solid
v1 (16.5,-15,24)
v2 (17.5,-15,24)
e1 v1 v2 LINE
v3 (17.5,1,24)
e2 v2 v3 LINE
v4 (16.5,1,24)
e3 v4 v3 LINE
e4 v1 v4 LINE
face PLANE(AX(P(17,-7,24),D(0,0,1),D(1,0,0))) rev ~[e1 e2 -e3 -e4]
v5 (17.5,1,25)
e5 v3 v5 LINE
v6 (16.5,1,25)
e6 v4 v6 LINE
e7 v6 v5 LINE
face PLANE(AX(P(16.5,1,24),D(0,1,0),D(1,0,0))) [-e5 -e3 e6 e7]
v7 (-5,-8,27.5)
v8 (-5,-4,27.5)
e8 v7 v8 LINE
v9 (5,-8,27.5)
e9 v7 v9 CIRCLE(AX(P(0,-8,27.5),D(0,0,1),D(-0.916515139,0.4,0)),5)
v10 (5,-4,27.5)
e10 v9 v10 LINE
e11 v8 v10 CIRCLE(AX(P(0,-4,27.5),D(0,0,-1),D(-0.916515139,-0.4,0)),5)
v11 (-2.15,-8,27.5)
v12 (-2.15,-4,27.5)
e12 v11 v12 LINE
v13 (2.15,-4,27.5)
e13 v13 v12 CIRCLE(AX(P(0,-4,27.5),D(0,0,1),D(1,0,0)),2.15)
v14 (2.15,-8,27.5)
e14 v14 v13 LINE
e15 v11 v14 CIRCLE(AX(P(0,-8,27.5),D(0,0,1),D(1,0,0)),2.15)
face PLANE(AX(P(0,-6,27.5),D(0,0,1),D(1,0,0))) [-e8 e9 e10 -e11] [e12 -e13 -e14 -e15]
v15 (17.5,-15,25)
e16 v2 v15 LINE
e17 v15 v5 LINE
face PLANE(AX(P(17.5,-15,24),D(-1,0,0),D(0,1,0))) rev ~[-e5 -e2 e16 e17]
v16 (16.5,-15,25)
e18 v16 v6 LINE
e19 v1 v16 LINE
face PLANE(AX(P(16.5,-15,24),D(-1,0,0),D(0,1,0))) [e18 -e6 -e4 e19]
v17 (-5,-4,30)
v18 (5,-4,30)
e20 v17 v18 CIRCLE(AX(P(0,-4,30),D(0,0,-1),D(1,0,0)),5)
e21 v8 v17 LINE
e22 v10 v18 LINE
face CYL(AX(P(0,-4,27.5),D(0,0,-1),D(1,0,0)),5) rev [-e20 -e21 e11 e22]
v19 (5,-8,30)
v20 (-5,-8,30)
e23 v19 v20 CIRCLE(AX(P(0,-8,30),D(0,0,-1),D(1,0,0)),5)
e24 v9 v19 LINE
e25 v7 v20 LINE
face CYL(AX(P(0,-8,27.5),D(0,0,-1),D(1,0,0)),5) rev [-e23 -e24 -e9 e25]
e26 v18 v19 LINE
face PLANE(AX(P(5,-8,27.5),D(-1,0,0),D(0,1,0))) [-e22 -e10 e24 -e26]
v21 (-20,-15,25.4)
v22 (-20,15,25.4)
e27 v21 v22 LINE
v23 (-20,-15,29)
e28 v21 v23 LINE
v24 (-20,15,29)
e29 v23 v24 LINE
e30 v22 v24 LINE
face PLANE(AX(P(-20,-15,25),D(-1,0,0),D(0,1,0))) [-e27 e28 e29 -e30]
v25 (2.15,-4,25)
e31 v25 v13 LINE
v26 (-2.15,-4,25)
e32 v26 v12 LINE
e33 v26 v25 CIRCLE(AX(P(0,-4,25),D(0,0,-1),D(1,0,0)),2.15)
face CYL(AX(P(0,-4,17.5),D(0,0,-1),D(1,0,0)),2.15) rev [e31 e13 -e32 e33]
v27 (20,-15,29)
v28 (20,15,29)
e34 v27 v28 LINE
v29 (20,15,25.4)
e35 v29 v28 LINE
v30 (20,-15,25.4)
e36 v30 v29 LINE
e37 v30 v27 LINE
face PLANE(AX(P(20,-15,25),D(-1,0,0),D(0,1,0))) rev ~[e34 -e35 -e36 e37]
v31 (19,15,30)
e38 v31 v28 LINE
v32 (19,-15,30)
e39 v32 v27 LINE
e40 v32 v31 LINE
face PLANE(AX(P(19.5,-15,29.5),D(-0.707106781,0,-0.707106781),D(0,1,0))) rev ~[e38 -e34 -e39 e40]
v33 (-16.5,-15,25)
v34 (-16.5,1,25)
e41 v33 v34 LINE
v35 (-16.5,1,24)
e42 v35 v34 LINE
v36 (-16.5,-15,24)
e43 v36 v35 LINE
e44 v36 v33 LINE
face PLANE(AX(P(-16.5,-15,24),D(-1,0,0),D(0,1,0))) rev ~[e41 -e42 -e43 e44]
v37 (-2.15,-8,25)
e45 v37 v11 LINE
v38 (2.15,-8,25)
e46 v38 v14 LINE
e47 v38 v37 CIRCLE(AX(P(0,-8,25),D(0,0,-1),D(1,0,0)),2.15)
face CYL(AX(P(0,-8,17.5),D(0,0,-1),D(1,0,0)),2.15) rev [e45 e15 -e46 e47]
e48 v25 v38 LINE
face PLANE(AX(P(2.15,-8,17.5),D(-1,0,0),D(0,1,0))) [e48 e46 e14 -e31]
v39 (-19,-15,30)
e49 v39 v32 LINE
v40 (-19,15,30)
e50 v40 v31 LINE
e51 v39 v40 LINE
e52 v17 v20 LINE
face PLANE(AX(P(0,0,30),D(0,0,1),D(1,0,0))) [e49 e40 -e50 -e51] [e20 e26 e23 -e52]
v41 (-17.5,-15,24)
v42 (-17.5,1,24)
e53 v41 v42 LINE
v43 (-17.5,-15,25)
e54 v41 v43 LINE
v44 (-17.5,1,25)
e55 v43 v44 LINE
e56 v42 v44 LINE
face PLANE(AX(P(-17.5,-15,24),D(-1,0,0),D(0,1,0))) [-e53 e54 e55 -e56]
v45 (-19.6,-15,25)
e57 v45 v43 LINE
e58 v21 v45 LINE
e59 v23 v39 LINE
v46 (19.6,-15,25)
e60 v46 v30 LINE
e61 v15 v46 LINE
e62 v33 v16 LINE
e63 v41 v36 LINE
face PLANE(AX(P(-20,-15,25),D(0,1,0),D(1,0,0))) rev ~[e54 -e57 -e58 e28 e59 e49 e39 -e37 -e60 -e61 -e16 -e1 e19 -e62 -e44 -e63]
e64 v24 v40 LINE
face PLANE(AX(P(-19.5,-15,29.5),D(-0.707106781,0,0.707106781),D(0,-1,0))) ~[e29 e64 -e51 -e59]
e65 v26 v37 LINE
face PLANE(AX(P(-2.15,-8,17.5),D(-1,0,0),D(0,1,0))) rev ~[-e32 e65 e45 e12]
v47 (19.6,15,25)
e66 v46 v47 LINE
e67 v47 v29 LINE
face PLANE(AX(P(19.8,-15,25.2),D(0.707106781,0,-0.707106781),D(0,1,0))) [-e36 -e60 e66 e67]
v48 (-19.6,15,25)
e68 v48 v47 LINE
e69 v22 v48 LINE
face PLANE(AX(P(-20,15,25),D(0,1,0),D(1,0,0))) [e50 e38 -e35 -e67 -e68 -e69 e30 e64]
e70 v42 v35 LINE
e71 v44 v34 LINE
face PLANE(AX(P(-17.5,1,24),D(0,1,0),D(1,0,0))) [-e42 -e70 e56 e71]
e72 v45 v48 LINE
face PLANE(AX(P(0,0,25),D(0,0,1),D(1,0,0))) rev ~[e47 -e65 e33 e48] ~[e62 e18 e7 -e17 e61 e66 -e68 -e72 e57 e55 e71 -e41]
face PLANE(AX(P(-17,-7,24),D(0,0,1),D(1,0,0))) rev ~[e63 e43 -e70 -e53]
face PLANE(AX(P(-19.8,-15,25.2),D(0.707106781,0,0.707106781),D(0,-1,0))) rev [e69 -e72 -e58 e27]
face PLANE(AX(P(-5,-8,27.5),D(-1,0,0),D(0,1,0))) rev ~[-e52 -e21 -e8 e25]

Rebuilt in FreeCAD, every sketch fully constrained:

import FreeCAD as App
import Part
import Sketcher

V = App.Vector
Q = App.Units.Quantity


def edges_at(feature, points):
    """Names of the edges that pass closest to the given points."""
    edges = feature.Shape.Edges
    near = lambda p: min(range(len(edges)), key=lambda i: edges[i].distToShape(Part.Vertex(*p))[0])
    return sorted({f"Edge{near(p) + 1}" for p in points})

doc = App.newDocument("Part")
params = doc.addObject("Spreadsheet::Sheet", "Params")
for row, (alias, value) in enumerate([
    ("sketch1_diameter", "4.3 mm"),
    ("pad1_length", "10 mm"),
    ("sketch2_diameter", "4.3 mm"),
    ("pad2_length", "10 mm"),
    ("sketch3_height", "4 mm"),
    ("sketch3_width", "4.3 mm"),
    ("pad3_length", "10 mm"),
    ("sketch4_diameter", "10 mm"),
    ("pad4_length", "10 mm"),
    ("sketch5_width", "10 mm"),
    ("sketch5_height", "4 mm"),
    ("pad5_length", "10 mm"),
    ("sketch6_diameter", "10 mm"),
    ("pad6_length", "10 mm"),
    ("sketch7_width", "1 mm"),
    ("sketch7_height", "16 mm"),
    ("pad7_length", "2 mm"),
    ("sketch8_width", "40 mm"),
    ("sketch8_height", "30 mm"),
    ("pad8_length", "5 mm"),
    ("sketch9_width", "1 mm"),
    ("sketch9_height", "16 mm"),
    ("pad9_length", "2 mm"),
    ("chamfer_size", "1 mm"),
    ("chamfer2_size", "0.4 mm"),
], start=1):
    params.set(f"A{row}", alias)
    params.set(f"B{row}", "=" + value)
    params.setAlias(f"B{row}", alias)

body = doc.addObject("PartDesign::Body", "Body")

# Sketch on XY plane
sketch1 = body.newObject("Sketcher::SketchObject", "Sketch")
sketch1.AttachmentSupport = (doc.getObject("XY_Plane"), [""])
sketch1.MapMode = "FlatFace"
sketch1.addGeometry(Part.Circle(V(0, -8, 0), V(0, 0, 1), 2.1), False)
sketch1.addConstraint(Sketcher.Constraint("PointOnObject", 0, 3, -2))
sketch1.addConstraint(Sketcher.Constraint("Diameter", 0, Q("4.3 mm")))
sketch1.addConstraint(Sketcher.Constraint("DistanceY", 0, 3, -1, 1, Q("8 mm")))
sketch1.setExpression("Constraints[1]", "Params.sketch1_diameter")
pad1 = body.newObject("PartDesign::Pad", "Pad")
pad1.Profile = sketch1
pad1.setExpression("Length", "Params.pad1_length")
body2 = doc.addObject("PartDesign::Body", "Body001")

# Sketch on XY plane
sketch2 = body2.newObject("Sketcher::SketchObject", "Sketch001")
sketch2.AttachmentSupport = (doc.getObject("XY_Plane001"), [""])
sketch2.MapMode = "FlatFace"
sketch2.addGeometry(Part.Circle(V(0, -4, 0), V(0, 0, 1), 2.1), False)
sketch2.addConstraint(Sketcher.Constraint("PointOnObject", 0, 3, -2))
sketch2.addConstraint(Sketcher.Constraint("Diameter", 0, Q("4.3 mm")))
sketch2.addConstraint(Sketcher.Constraint("DistanceY", 0, 3, -1, 1, Q("4 mm")))
sketch2.setExpression("Constraints[1]", "Params.sketch2_diameter")
pad2 = body2.newObject("PartDesign::Pad", "Pad001")
pad2.Profile = sketch2
pad2.setExpression("Length", "Params.pad2_length")
body3 = doc.addObject("PartDesign::Body", "Body002")

# Sketch on XY plane
sketch3 = body3.newObject("Sketcher::SketchObject", "Sketch002")
sketch3.AttachmentSupport = (doc.getObject("XY_Plane002"), [""])
sketch3.MapMode = "FlatFace"
sketch3.addGeometry(Part.LineSegment(V(-2.1, -4, 0), V(-2.1, -8, 0)), False)
sketch3.addGeometry(Part.LineSegment(V(-2.1, -8, 0), V(2.1, -8, 0)), False)
sketch3.addGeometry(Part.LineSegment(V(2.1, -8, 0), V(2.1, -4, 0)), False)
sketch3.addGeometry(Part.LineSegment(V(2.1, -4, 0), V(-2.1, -4, 0)), False)
sketch3.addConstraint(Sketcher.Constraint("Coincident", 0, 2, 1, 1))
sketch3.addConstraint(Sketcher.Constraint("Coincident", 1, 2, 2, 1))
sketch3.addConstraint(Sketcher.Constraint("Coincident", 2, 2, 3, 1))
sketch3.addConstraint(Sketcher.Constraint("Coincident", 3, 2, 0, 1))
sketch3.addConstraint(Sketcher.Constraint("Vertical", 0))
sketch3.addConstraint(Sketcher.Constraint("Horizontal", 1))
sketch3.addConstraint(Sketcher.Constraint("Vertical", 2))
sketch3.addConstraint(Sketcher.Constraint("Horizontal", 3))
sketch3.addConstraint(Sketcher.Constraint("DistanceY", 0, 2, 0, 1, Q("4 mm")))
sketch3.addConstraint(Sketcher.Constraint("DistanceX", 1, 1, 1, 2, Q("4.3 mm")))
sketch3.addConstraint(Sketcher.Constraint("DistanceY", 0, 2, -1, 1, Q("8 mm")))
sketch3.addConstraint(Sketcher.Constraint("DistanceX", 0, 2, -1, 1, Q("2.15 mm")))
sketch3.setExpression("Constraints[8]", "Params.sketch3_height")
sketch3.setExpression("Constraints[9]", "Params.sketch3_width")
pad3 = body3.newObject("PartDesign::Pad", "Pad002")
pad3.Profile = sketch3
pad3.setExpression("Length", "Params.pad3_length")
doc.recompute()

boolean = body3.newObject("PartDesign::Boolean", "Boolean")
boolean.Type = "Fuse"
boolean.addObjects([body])
doc.recompute()

boolean2 = body3.newObject("PartDesign::Boolean", "Boolean001")
boolean2.Type = "Fuse"
boolean2.addObjects([body2])
body4 = doc.addObject("PartDesign::Body", "Body003")

# Sketch on XY plane
sketch4 = body4.newObject("Sketcher::SketchObject", "Sketch003")
sketch4.AttachmentSupport = (doc.getObject("XY_Plane003"), [""])
sketch4.MapMode = "FlatFace"
sketch4.addGeometry(Part.Circle(V(0, -8, 0), V(0, 0, 1), 5), False)
sketch4.addConstraint(Sketcher.Constraint("PointOnObject", 0, 3, -2))
sketch4.addConstraint(Sketcher.Constraint("Diameter", 0, Q("10 mm")))
sketch4.addConstraint(Sketcher.Constraint("DistanceY", 0, 3, -1, 1, Q("8 mm")))
sketch4.setExpression("Constraints[1]", "Params.sketch4_diameter")
pad4 = body4.newObject("PartDesign::Pad", "Pad003")
pad4.Profile = sketch4
pad4.setExpression("Length", "Params.pad4_length")
body5 = doc.addObject("PartDesign::Body", "Body004")

# Sketch on XY plane
sketch5 = body5.newObject("Sketcher::SketchObject", "Sketch004")
sketch5.AttachmentSupport = (doc.getObject("XY_Plane004"), [""])
sketch5.MapMode = "FlatFace"
sketch5.addGeometry(Part.LineSegment(V(-5, -4, 0), V(-5, -8, 0)), False)
sketch5.addGeometry(Part.LineSegment(V(-5, -8, 0), V(5, -8, 0)), False)
sketch5.addGeometry(Part.LineSegment(V(5, -8, 0), V(5, -4, 0)), False)
sketch5.addGeometry(Part.LineSegment(V(5, -4, 0), V(-5, -4, 0)), False)
sketch5.addConstraint(Sketcher.Constraint("Coincident", 0, 2, 1, 1))
sketch5.addConstraint(Sketcher.Constraint("Coincident", 1, 2, 2, 1))
sketch5.addConstraint(Sketcher.Constraint("Coincident", 2, 2, 3, 1))
sketch5.addConstraint(Sketcher.Constraint("Coincident", 3, 2, 0, 1))
sketch5.addConstraint(Sketcher.Constraint("Vertical", 0))
sketch5.addConstraint(Sketcher.Constraint("Horizontal", 1))
sketch5.addConstraint(Sketcher.Constraint("Vertical", 2))
sketch5.addConstraint(Sketcher.Constraint("Horizontal", 3))
sketch5.addConstraint(Sketcher.Constraint("DistanceX", 1, 1, 1, 2, Q("10 mm")))
sketch5.addConstraint(Sketcher.Constraint("DistanceY", 0, 2, 0, 1, Q("4 mm")))
sketch5.addConstraint(Sketcher.Constraint("DistanceX", 0, 2, -1, 1, Q("5 mm")))
sketch5.addConstraint(Sketcher.Constraint("DistanceY", 0, 2, -1, 1, Q("8 mm")))
sketch5.setExpression("Constraints[8]", "Params.sketch5_width")
sketch5.setExpression("Constraints[9]", "Params.sketch5_height")
pad5 = body5.newObject("PartDesign::Pad", "Pad004")
pad5.Profile = sketch5
pad5.setExpression("Length", "Params.pad5_length")
body6 = doc.addObject("PartDesign::Body", "Body005")

# Sketch on XY plane
sketch6 = body6.newObject("Sketcher::SketchObject", "Sketch005")
sketch6.AttachmentSupport = (doc.getObject("XY_Plane005"), [""])
sketch6.MapMode = "FlatFace"
sketch6.addGeometry(Part.Circle(V(0, -4, 0), V(0, 0, 1), 5), False)
sketch6.addConstraint(Sketcher.Constraint("PointOnObject", 0, 3, -2))
sketch6.addConstraint(Sketcher.Constraint("Diameter", 0, Q("10 mm")))
sketch6.addConstraint(Sketcher.Constraint("DistanceY", 0, 3, -1, 1, Q("4 mm")))
sketch6.setExpression("Constraints[1]", "Params.sketch6_diameter")
pad6 = body6.newObject("PartDesign::Pad", "Pad005")
pad6.Profile = sketch6
pad6.setExpression("Length", "Params.pad6_length")
doc.recompute()

boolean3 = body6.newObject("PartDesign::Boolean", "Boolean002")
boolean3.Type = "Fuse"
boolean3.addObjects([body4])
doc.recompute()

boolean4 = body6.newObject("PartDesign::Boolean", "Boolean003")
boolean4.Type = "Fuse"
boolean4.addObjects([body5])
body7 = doc.addObject("PartDesign::Body", "Body006")
doc.recompute()

body6.Placement = App.Placement(V(0, 0, 10), App.Rotation(V(0, 0, 1), 0))
boolean5 = body7.newObject("PartDesign::Boolean", "Boolean004")
boolean5.Type = "Fuse"
boolean5.addObjects([body6])
doc.recompute()

boolean6 = body7.newObject("PartDesign::Boolean", "Boolean005")
boolean6.Type = "Fuse"
boolean6.addObjects([body3])
body8 = doc.addObject("PartDesign::Body", "Body007")
doc.recompute()

body7.Placement = App.Placement(V(0, 0, 17.5), App.Rotation(V(0, 0, 1), 0))
boolean7 = body8.newObject("PartDesign::Boolean", "Boolean006")
boolean7.Type = "Fuse"
boolean7.addObjects([body7])
body9 = doc.addObject("PartDesign::Body", "Body008")

# Sketch on XY plane
sketch7 = body9.newObject("Sketcher::SketchObject", "Sketch006")
sketch7.AttachmentSupport = (doc.getObject("XY_Plane008"), [""])
sketch7.MapMode = "FlatFace"
sketch7.AttachmentOffset = App.Placement(V(0, 0, 24), App.Rotation())
sketch7.addGeometry(Part.LineSegment(V(-17.5, 1, 0), V(-17.5, -15, 0)), False)
sketch7.addGeometry(Part.LineSegment(V(-17.5, -15, 0), V(-16.5, -15, 0)), False)
sketch7.addGeometry(Part.LineSegment(V(-16.5, -15, 0), V(-16.5, 1, 0)), False)
sketch7.addGeometry(Part.LineSegment(V(-16.5, 1, 0), V(-17.5, 1, 0)), False)
sketch7.addConstraint(Sketcher.Constraint("Coincident", 0, 2, 1, 1))
sketch7.addConstraint(Sketcher.Constraint("Coincident", 1, 2, 2, 1))
sketch7.addConstraint(Sketcher.Constraint("Coincident", 2, 2, 3, 1))
sketch7.addConstraint(Sketcher.Constraint("Coincident", 3, 2, 0, 1))
sketch7.addConstraint(Sketcher.Constraint("Vertical", 0))
sketch7.addConstraint(Sketcher.Constraint("Horizontal", 1))
sketch7.addConstraint(Sketcher.Constraint("Vertical", 2))
sketch7.addConstraint(Sketcher.Constraint("Horizontal", 3))
sketch7.addConstraint(Sketcher.Constraint("DistanceX", 1, 1, 1, 2, Q("1 mm")))
sketch7.addConstraint(Sketcher.Constraint("DistanceY", 0, 2, 0, 1, Q("16 mm")))
sketch7.addConstraint(Sketcher.Constraint("DistanceY", 0, 2, -1, 1, Q("15 mm")))
sketch7.addConstraint(Sketcher.Constraint("DistanceX", 0, 2, -1, 1, Q("17.5 mm")))
sketch7.setExpression("Constraints[8]", "Params.sketch7_width")
sketch7.setExpression("Constraints[9]", "Params.sketch7_height")
pad7 = body9.newObject("PartDesign::Pad", "Pad006")
pad7.Profile = sketch7
pad7.setExpression("Length", "Params.pad7_length")
body10 = doc.addObject("PartDesign::Body", "Body009")

# Sketch on XY plane
sketch8 = body10.newObject("Sketcher::SketchObject", "Sketch007")
sketch8.AttachmentSupport = (doc.getObject("XY_Plane009"), [""])
sketch8.MapMode = "FlatFace"
sketch8.AttachmentOffset = App.Placement(V(0, 0, 25), App.Rotation())
sketch8.addGeometry(Part.LineSegment(V(-20, 15, 0), V(-20, -15, 0)), False)
sketch8.addGeometry(Part.LineSegment(V(-20, -15, 0), V(20, -15, 0)), False)
sketch8.addGeometry(Part.LineSegment(V(20, -15, 0), V(20, 15, 0)), False)
sketch8.addGeometry(Part.LineSegment(V(20, 15, 0), V(-20, 15, 0)), False)
sketch8.addConstraint(Sketcher.Constraint("Coincident", 0, 2, 1, 1))
sketch8.addConstraint(Sketcher.Constraint("Coincident", 1, 2, 2, 1))
sketch8.addConstraint(Sketcher.Constraint("Coincident", 2, 2, 3, 1))
sketch8.addConstraint(Sketcher.Constraint("Coincident", 3, 2, 0, 1))
sketch8.addConstraint(Sketcher.Constraint("Vertical", 0))
sketch8.addConstraint(Sketcher.Constraint("Horizontal", 1))
sketch8.addConstraint(Sketcher.Constraint("Vertical", 2))
sketch8.addConstraint(Sketcher.Constraint("Horizontal", 3))
sketch8.addConstraint(Sketcher.Constraint("Symmetric", 0, 2, 2, 2, -1, 1))
sketch8.addConstraint(Sketcher.Constraint("DistanceX", 1, 1, 1, 2, Q("40 mm")))
sketch8.addConstraint(Sketcher.Constraint("DistanceY", 0, 2, 0, 1, Q("30 mm")))
sketch8.setExpression("Constraints[9]", "Params.sketch8_width")
sketch8.setExpression("Constraints[10]", "Params.sketch8_height")
pad8 = body10.newObject("PartDesign::Pad", "Pad007")
pad8.Profile = sketch8
pad8.setExpression("Length", "Params.pad8_length")
body11 = doc.addObject("PartDesign::Body", "Body010")
body11.AllowCompound = True

# Sketch on XY plane
sketch9 = body11.newObject("Sketcher::SketchObject", "Sketch008")
sketch9.AttachmentSupport = (doc.getObject("XY_Plane010"), [""])
sketch9.MapMode = "FlatFace"
sketch9.AttachmentOffset = App.Placement(V(0, 0, 24), App.Rotation())
sketch9.addGeometry(Part.LineSegment(V(16.5, 1, 0), V(16.5, -15, 0)), False)
sketch9.addGeometry(Part.LineSegment(V(16.5, -15, 0), V(17.5, -15, 0)), False)
sketch9.addGeometry(Part.LineSegment(V(17.5, -15, 0), V(17.5, 1, 0)), False)
sketch9.addGeometry(Part.LineSegment(V(17.5, 1, 0), V(16.5, 1, 0)), False)
sketch9.addConstraint(Sketcher.Constraint("Coincident", 0, 2, 1, 1))
sketch9.addConstraint(Sketcher.Constraint("Coincident", 1, 2, 2, 1))
sketch9.addConstraint(Sketcher.Constraint("Coincident", 2, 2, 3, 1))
sketch9.addConstraint(Sketcher.Constraint("Coincident", 3, 2, 0, 1))
sketch9.addConstraint(Sketcher.Constraint("Vertical", 0))
sketch9.addConstraint(Sketcher.Constraint("Horizontal", 1))
sketch9.addConstraint(Sketcher.Constraint("Vertical", 2))
sketch9.addConstraint(Sketcher.Constraint("Horizontal", 3))
sketch9.addConstraint(Sketcher.Constraint("DistanceX", 1, 1, 1, 2, Q("1 mm")))
sketch9.addConstraint(Sketcher.Constraint("DistanceY", 0, 2, 0, 1, Q("16 mm")))
sketch9.addConstraint(Sketcher.Constraint("DistanceY", 0, 2, -1, 1, Q("15 mm")))
sketch9.addConstraint(Sketcher.Constraint("DistanceX", -1, 1, 0, 2, Q("16.5 mm")))
sketch9.setExpression("Constraints[8]", "Params.sketch9_width")
sketch9.setExpression("Constraints[9]", "Params.sketch9_height")
pad9 = body11.newObject("PartDesign::Pad", "Pad008")
pad9.Profile = sketch9
pad9.setExpression("Length", "Params.pad9_length")
doc.recompute()

boolean8 = body11.newObject("PartDesign::Boolean", "Boolean007")
boolean8.Type = "Fuse"
boolean8.addObjects([body9])
doc.recompute()

boolean9 = body11.newObject("PartDesign::Boolean", "Boolean008")
boolean9.Type = "Fuse"
boolean9.addObjects([body10])
doc.recompute()

chamfer = body11.newObject("PartDesign::Chamfer", "Chamfer")
chamfer.Base = (boolean9, edges_at(boolean9, [(20, 0, 30), (-20, 0, 30)]))
chamfer.setExpression("Size", "Params.chamfer_size")
doc.recompute()

chamfer2 = body11.newObject("PartDesign::Chamfer", "Chamfer001")
chamfer2.Base = (chamfer, edges_at(chamfer, [(20, 0, 25), (-20, 0, 25)]))
chamfer2.setExpression("Size", "Params.chamfer2_size")
doc.recompute()

boolean10 = body11.newObject("PartDesign::Boolean", "Boolean009")
boolean10.Type = "Cut"
boolean10.addObjects([body8])

doc.recompute()
